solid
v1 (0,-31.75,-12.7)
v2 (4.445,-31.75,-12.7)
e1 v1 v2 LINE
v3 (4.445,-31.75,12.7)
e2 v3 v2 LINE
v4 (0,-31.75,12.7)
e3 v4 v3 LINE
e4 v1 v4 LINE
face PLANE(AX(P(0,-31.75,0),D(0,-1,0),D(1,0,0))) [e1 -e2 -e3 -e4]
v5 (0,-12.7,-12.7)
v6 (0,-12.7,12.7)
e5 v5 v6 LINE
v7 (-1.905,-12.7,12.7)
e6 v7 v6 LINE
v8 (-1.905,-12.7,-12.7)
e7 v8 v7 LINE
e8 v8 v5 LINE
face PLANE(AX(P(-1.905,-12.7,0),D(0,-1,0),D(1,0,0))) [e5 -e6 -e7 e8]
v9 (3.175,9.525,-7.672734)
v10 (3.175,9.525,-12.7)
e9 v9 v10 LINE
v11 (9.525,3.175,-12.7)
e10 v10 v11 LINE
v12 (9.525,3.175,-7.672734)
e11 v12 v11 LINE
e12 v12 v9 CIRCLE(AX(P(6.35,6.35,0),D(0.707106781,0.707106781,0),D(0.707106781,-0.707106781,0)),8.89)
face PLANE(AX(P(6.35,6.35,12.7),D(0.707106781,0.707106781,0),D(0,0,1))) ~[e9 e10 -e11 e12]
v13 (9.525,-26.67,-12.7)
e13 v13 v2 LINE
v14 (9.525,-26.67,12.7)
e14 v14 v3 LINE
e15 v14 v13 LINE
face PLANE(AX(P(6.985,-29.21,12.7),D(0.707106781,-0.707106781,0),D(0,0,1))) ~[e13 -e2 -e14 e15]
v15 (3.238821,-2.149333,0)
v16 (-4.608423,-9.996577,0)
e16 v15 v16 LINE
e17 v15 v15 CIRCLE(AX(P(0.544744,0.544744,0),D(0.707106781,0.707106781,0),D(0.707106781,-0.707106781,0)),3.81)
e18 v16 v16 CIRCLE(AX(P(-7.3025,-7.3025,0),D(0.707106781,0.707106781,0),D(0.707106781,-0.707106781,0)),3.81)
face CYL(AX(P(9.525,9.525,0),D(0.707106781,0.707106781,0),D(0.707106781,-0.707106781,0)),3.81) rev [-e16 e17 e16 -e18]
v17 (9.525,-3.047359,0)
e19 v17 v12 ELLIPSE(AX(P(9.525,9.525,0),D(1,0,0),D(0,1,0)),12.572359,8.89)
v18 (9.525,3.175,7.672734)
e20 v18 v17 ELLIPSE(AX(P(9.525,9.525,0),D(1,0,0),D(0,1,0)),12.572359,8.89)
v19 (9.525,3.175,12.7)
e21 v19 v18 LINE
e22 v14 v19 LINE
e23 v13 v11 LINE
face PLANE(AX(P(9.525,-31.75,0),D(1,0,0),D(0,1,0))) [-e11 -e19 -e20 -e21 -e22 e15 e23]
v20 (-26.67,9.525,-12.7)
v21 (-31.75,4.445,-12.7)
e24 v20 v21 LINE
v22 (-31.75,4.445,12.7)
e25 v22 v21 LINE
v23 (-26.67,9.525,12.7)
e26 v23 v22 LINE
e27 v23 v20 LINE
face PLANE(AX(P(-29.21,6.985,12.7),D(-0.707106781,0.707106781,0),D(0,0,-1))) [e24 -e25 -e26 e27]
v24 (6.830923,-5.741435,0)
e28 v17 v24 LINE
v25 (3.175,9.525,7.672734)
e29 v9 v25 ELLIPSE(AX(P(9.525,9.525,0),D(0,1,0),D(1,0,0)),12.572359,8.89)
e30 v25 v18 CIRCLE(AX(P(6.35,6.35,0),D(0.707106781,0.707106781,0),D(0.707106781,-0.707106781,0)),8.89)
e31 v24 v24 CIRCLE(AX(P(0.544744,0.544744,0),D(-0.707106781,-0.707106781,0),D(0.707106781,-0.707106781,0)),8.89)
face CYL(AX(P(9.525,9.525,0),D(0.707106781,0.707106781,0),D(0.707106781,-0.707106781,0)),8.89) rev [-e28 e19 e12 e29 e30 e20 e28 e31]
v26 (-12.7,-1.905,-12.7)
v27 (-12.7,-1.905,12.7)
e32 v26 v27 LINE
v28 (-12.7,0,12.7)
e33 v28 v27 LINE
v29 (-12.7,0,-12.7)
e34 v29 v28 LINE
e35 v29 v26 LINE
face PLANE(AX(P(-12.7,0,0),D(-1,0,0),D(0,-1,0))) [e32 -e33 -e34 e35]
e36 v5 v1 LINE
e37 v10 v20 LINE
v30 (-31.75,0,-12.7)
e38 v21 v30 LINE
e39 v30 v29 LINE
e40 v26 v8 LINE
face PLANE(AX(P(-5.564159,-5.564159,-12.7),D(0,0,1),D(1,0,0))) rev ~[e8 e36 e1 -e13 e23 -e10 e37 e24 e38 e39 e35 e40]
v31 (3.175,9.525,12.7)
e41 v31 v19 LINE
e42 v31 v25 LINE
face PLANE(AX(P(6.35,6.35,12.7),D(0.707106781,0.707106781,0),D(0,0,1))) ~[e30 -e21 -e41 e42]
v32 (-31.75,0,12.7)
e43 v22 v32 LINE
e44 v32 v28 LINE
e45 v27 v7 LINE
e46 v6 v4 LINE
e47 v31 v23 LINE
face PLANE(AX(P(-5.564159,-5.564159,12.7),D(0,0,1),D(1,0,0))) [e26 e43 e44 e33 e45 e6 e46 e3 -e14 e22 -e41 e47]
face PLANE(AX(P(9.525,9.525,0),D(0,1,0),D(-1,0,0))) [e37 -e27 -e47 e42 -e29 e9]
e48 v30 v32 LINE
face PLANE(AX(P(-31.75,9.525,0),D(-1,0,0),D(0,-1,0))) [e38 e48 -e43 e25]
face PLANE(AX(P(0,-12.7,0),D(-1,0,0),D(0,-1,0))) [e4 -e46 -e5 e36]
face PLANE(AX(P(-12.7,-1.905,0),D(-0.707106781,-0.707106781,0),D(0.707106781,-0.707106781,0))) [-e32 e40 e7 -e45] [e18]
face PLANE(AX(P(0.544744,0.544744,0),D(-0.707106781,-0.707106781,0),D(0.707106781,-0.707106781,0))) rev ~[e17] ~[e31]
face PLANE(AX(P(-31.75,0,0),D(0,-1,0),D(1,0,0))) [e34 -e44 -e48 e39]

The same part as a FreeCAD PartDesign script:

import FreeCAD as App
import Part
import Sketcher

V = App.Vector
Q = App.Units.Quantity


def edges_at(feature, points):
    """Names of the edges that pass closest to the given points."""
    edges = feature.Shape.Edges
    near = lambda p: min(range(len(edges)), key=lambda i: edges[i].distToShape(Part.Vertex(*p))[0])
    return sorted({f"Edge{near(p) + 1}" for p in points})


def add_polygon(sketch, points):
    """Adds a closed chain of lines whose ends are joined by coincident constraints."""
    first, n = sketch.GeometryCount, len(points)
    for a, b in zip(points, points[1:] + points[:1]):
        sketch.addGeometry(Part.LineSegment(App.Vector(*a, 0), App.Vector(*b, 0)), False)
    for i in range(n):
        sketch.addConstraint(Sketcher.Constraint("Coincident", first + i, 2, first + (i + 1) % n, 1))

doc = App.newDocument("Part")
body = doc.addObject("PartDesign::Body", "Body")

# Sketch on XY plane
sketch1 = body.newObject("Sketcher::SketchObject", "Sketch")
sketch1.AttachmentSupport = (doc.getObject("XY_Plane"), [""])
sketch1.MapMode = "FlatFace"
add_polygon(sketch1, [(-31.8, 9.5), (-31.8, 0), (-12.7, 0), (-12.7, -1.9), (-1.9, -12.7), (0, -12.7), (0, -31.8), (9.5, -31.8), (9.5, 9.5)])  # lines 0-8
sketch1.addConstraint([
    Sketcher.Constraint("Vertical", 0),
    Sketcher.Constraint("Horizontal", 1),
    Sketcher.Constraint("Vertical", 2),
    Sketcher.Constraint("Horizontal", 4),
    Sketcher.Constraint("Vertical", 5),
    Sketcher.Constraint("Horizontal", 6),
    Sketcher.Constraint("Vertical", 7),
    Sketcher.Constraint("Horizontal", 8),
    Sketcher.Constraint("PointOnObject", 0, 2, -1),
    Sketcher.Constraint("PointOnObject", 4, 2, -2),
    Sketcher.Constraint("Equal", 6, 0),
    Sketcher.Constraint("Equal", 4, 2),
    Sketcher.Constraint("Equal", 1, 5),
    Sketcher.Constraint("Equal", 8, 7),
    Sketcher.Constraint("DistanceX", 1, 1, 1, 2, Q("0.75 in")),
    Sketcher.Constraint("DistanceX", 1, 2, -1, 1, Q("0.5 in")),
    Sketcher.Constraint("DistanceX", 4, 1, 4, 2, Q("0.075 in")),
    Sketcher.Constraint("DistanceX", 6, 1, 6, 2, Q("0.375 in")),
])
pad1 = body.newObject("PartDesign::Pad", "Pad")
pad1.Profile = sketch1
pad1.Length = Q("1 in")
pad1.Midplane = True
doc.recompute()

chamfer = body.newObject("PartDesign::Chamfer", "Chamfer")
chamfer.Base = (pad1, edges_at(pad1, [(9.525, 9.525, 0)]))
chamfer.Size = Q("0.25 in")

# Sketch on an angled plane
sketch2 = body.newObject("Sketcher::SketchObject", "Sketch001")
sketch2.Placement = App.Placement(V(9.525, 9.525, 0), App.Rotation(V(0.707106781, -0.707106781, 0), V(0, 0, 0.999999999), V(-0.707106781, -0.707106781, 0), "ZXY"))
sketch2.addGeometry(Part.Circle(V(0, 0, 0), V(0, 0, 1), 3.8), False)
sketch2.addConstraint([
    Sketcher.Constraint("Coincident", 0, 3, -1, 1),
    Sketcher.Constraint("Diameter", 0, Q("0.3 in")),
])
pocket1 = body.newObject("PartDesign::Pocket", "Pocket")
pocket1.Profile = sketch2
pocket1.Type = "ThroughAll"
pocket1.Reversed = True

# Sketch on an angled plane
sketch3 = body.newObject("Sketcher::SketchObject", "Sketch002")
sketch3.Placement = App.Placement(V(9.525, 9.525, 0), App.Rotation(V(0.707106781, -0.707106781, 0), V(0, 0, 0.999999999), V(-0.707106781, -0.707106781, 0), "ZXY"))
sketch3.addGeometry(Part.Circle(V(0, 0, 0), V(0, 0, 1), 9), False)
sketch3.addConstraint([
    Sketcher.Constraint("Coincident", 0, 3, -1, 1),
    Sketcher.Constraint("Diameter", 0, Q("0.7 in")),
])
pocket2 = body.newObject("PartDesign::Pocket", "Pocket001")
pocket2.Profile = sketch3
pocket2.Length = Q("0.5 in")
pocket2.Reversed = True
doc.recompute()

chamfer2 = body.newObject("PartDesign::Chamfer", "Chamfer001")
chamfer2.Base = (pocket2, edges_at(pocket2, [(9.525, -31.75, 0), (-31.75, 9.525, 0)]))
chamfer2.Size = Q("0.2 in")

doc.recompute()
